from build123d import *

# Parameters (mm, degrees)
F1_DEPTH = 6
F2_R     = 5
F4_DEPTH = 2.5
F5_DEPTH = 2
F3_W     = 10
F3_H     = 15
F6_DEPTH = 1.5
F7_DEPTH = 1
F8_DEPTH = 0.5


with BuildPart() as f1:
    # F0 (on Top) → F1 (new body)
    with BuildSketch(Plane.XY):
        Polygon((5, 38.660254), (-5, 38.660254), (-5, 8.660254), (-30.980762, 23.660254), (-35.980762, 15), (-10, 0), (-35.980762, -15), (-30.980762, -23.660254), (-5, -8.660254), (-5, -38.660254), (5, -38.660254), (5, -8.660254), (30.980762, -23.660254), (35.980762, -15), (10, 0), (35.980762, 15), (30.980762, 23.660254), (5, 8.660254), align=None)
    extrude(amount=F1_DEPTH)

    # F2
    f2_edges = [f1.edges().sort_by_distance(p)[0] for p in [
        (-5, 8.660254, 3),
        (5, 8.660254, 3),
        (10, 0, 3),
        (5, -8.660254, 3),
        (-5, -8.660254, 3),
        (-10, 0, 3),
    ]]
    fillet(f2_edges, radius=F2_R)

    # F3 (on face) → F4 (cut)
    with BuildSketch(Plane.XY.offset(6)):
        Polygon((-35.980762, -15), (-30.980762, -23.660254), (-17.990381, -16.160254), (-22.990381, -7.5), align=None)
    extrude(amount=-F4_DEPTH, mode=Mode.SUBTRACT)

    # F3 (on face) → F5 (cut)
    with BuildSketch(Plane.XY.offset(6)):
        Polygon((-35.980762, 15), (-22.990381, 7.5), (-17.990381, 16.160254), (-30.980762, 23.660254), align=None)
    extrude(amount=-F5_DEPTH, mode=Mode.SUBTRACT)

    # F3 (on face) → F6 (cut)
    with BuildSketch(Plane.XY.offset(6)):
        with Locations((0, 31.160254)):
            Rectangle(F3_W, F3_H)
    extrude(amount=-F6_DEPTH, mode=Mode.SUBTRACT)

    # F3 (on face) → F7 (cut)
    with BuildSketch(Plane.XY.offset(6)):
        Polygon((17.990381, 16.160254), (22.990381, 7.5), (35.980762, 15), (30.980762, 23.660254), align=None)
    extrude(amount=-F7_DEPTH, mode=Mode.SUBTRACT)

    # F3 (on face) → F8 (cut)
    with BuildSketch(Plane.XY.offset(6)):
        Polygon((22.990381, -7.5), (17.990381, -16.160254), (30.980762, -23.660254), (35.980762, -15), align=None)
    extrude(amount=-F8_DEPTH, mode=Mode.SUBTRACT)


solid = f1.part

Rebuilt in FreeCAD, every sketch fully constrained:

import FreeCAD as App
import Part
import Sketcher
from FreeCAD import Vector
Q = App.Units.Quantity


def edges_at(feature, points):
    """Names of the edges that pass closest to the given points."""
    edges = feature.Shape.Edges
    near = lambda p: min(range(len(edges)), key=lambda i: edges[i].distToShape(Part.Vertex(*p))[0])
    return sorted({f"Edge{near(p) + 1}" for p in points})


def add_polygon(sketch, points):
    """Adds a closed chain of lines whose ends are joined by coincident constraints."""
    first, n = sketch.GeometryCount, len(points)
    for a, b in zip(points, points[1:] + points[:1]):
        sketch.addGeometry(Part.LineSegment(App.Vector(*a, 0), App.Vector(*b, 0)), False)
    for i in range(n):
        sketch.addConstraint(Sketcher.Constraint("Coincident", first + i, 2, first + (i + 1) % n, 1))

doc = App.newDocument("Part")
params = doc.addObject("Spreadsheet::Sheet", "Params")
for row, (alias, value) in enumerate([
    ("sketch1_width", "10 mm"),
    ("sketch1_height", "30 mm"),
    ("sketch1_length", "30 mm"),
    ("sketch1_length2", "10 mm"),
    ("pad1_length", "6 mm"),
    ("fillet_radius", "5 mm"),
    ("sketch2_length", "10 mm"),
    ("sketch2_length2", "15 mm"),
    ("pocket1_length", "2.5 mm"),
    ("sketch3_length", "15 mm"),
    ("sketch3_length2", "10 mm"),
    ("pocket2_length", "2 mm"),
    ("sketch4_width", "10 mm"),
    ("sketch4_height", "15 mm"),
    ("pocket3_length", "1.5 mm"),
    ("sketch5_length", "10 mm"),
    ("sketch5_length2", "15 mm"),
    ("pocket4_length", "1 mm"),
    ("sketch6_length", "10 mm"),
    ("sketch6_length2", "15 mm"),
    ("pocket5_length", "0.5 mm"),
], start=1):
    params.set(f"A{row}", alias)
    params.set(f"B{row}", "=" + value)
    params.setAlias(f"B{row}", alias)

body = doc.addObject("PartDesign::Body", "Body")

sketch1 = body.newObject("Sketcher::SketchObject", "Sketch")
sketch1.AttachmentSupport = (doc.getObject("XY_Plane"), [""])
sketch1.MapMode = "FlatFace"
add_polygon(sketch1, [(5, 39), (-5, 39), (-5, 9), (-31, 24), (-36, 15), (-10, 0), (-36, -15), (-31, -24), (-5, -9), (-5, -39), (5, -39), (5, -9), (31, -24), (36, -15), (10, 0), (36, 15), (31, 24), (5, 9)])
sketch1.addConstraint([
    Sketcher.Constraint("Horizontal", 0),
    Sketcher.Constraint("Vertical", 1),
    Sketcher.Constraint("Vertical", 8),
    Sketcher.Constraint("Horizontal", 9),
    Sketcher.Constraint("Vertical", 10),
    Sketcher.Constraint("Vertical", 17),
    Sketcher.Constraint("Symmetric", 0, 2, 9, 2, -1, 1),
    Sketcher.Constraint("Symmetric", 2, 2, 11, 2, -1, 1),
    Sketcher.Constraint("Symmetric", 3, 2, 12, 2, -1, 1),
    Sketcher.Constraint("Symmetric", 4, 2, 13, 2, -1, 1),
    Sketcher.Constraint("Symmetric", 5, 2, 14, 2, -1, 1),
    Sketcher.Constraint("Symmetric", 6, 2, 15, 2, -1, 1),
    Sketcher.Constraint("Symmetric", 7, 2, 16, 2, -1, 1),
    Sketcher.Constraint("Symmetric", 7, 2, 10, 2, -2),
    Sketcher.Constraint("Symmetric", 6, 2, 11, 2, -2),
    Sketcher.Constraint("Symmetric", 5, 2, 12, 2, -2),
    Sketcher.Constraint("PointOnObject", 4, 2, -1),
    Sketcher.Constraint("Perpendicular", 2, 3),
    Sketcher.Constraint("Perpendicular", 3, 4),
    Sketcher.Constraint("Perpendicular", 6, 7),
    Sketcher.Constraint("Equal", 2, 4),
    Sketcher.Constraint("DistanceX", 0, 2, 0, 1, 10.0),
    Sketcher.Constraint("DistanceY", 1, 2, 1, 1, 30.0),
    Sketcher.Constraint("Angle", 2, Q("150 deg")),
    Sketcher.Constraint("Distance", 2, 30.0),
    Sketcher.Constraint("Distance", 3, 10.0),
])
sketch1.setExpression("Constraints[39]", "Params.sketch1_width")
sketch1.setExpression("Constraints[40]", "Params.sketch1_height")
sketch1.setExpression("Constraints[42]", "Params.sketch1_length")
sketch1.setExpression("Constraints[43]", "Params.sketch1_length2")
pad1 = body.newObject("PartDesign::Pad", "Pad")
pad1.Profile = sketch1
pad1.setExpression("Length", "Params.pad1_length")
doc.recompute()

fillet = body.newObject("PartDesign::Fillet", "Fillet")
fillet.Base = (pad1, edges_at(pad1, [
    (-5, 8.66, 3),
    (5, 8.66, 3),
    (10, 0, 3),
    (5, -8.66, 3),
    (-5, -8.66, 3),
    (-10, 0, 3),
]))
fillet.setExpression("Radius", "Params.fillet_radius")

sketch2 = body.newObject("Sketcher::SketchObject", "Sketch001")
sketch2.AttachmentSupport = (doc.getObject("XY_Plane"), [""])
sketch2.MapMode = "FlatFace"
sketch2.AttachmentOffset = App.Placement(Vector(0, 0, 6), App.Rotation())
add_polygon(sketch2, [(-36, -15), (-31, -24), (-18, -16), (-23, -8)])
sketch2.addConstraint([
    Sketcher.Constraint("Perpendicular", 0, 1),
    Sketcher.Constraint("Perpendicular", 1, 2),
    Sketcher.Constraint("Perpendicular", 2, 3),
    Sketcher.Constraint("Angle", 0, Q("-60 deg")),
    Sketcher.Constraint("Distance", 0, 10.0),
    Sketcher.Constraint("Distance", 1, 15.0),
    Sketcher.Constraint("DistanceY", 3, 2, -1, 1, 15.0),
    Sketcher.Constraint("DistanceX", 0, 2, -1, 1, 30.980762),
])
sketch2.setExpression("Constraints[8]", "Params.sketch2_length")
sketch2.setExpression("Constraints[9]", "Params.sketch2_length2")
pocket1 = body.newObject("PartDesign::Pocket", "Pocket")
pocket1.Profile = sketch2
pocket1.setExpression("Length", "Params.pocket1_length")

sketch3 = body.newObject("Sketcher::SketchObject", "Sketch002")
sketch3.AttachmentSupport = (doc.getObject("XY_Plane"), [""])
sketch3.MapMode = "FlatFace"
sketch3.AttachmentOffset = App.Placement(Vector(0, 0, 6), App.Rotation())
add_polygon(sketch3, [(-36, 15), (-23, 8), (-18, 16), (-31, 24)])
sketch3.addConstraint([
    Sketcher.Constraint("Perpendicular", 0, 1),
    Sketcher.Constraint("Perpendicular", 1, 2),
    Sketcher.Constraint("Perpendicular", 2, 3),
    Sketcher.Constraint("Angle", 0, Q("-30 deg")),
    Sketcher.Constraint("Distance", 0, 15.0),
    Sketcher.Constraint("Distance", 1, 10.0),
    Sketcher.Constraint("DistanceY", -1, 1, 3, 2, 15.0),
    Sketcher.Constraint("DistanceX", 0, 2, -1, 1, 22.990381),
])
sketch3.setExpression("Constraints[8]", "Params.sketch3_length")
sketch3.setExpression("Constraints[9]", "Params.sketch3_length2")
pocket2 = body.newObject("PartDesign::Pocket", "Pocket001")
pocket2.Profile = sketch3
pocket2.setExpression("Length", "Params.pocket2_length")

sketch4 = body.newObject("Sketcher::SketchObject", "Sketch003")
sketch4.AttachmentSupport = (doc.getObject("XY_Plane"), [""])
sketch4.MapMode = "FlatFace"
sketch4.AttachmentOffset = App.Placement(Vector(0, 0, 6), App.Rotation())
add_polygon(sketch4, [(-5, 39), (-5, 24), (5, 24), (5, 39)])
sketch4.addConstraint([
    Sketcher.Constraint("Vertical", 0),
    Sketcher.Constraint("Horizontal", 1),
    Sketcher.Constraint("Vertical", 2),
    Sketcher.Constraint("Horizontal", 3),
    Sketcher.Constraint("DistanceX", 1, 1, 1, 2, 10.0),
    Sketcher.Constraint("DistanceY", 0, 2, 0, 1, 15.0),
    Sketcher.Constraint("DistanceX", 0, 2, -1, 1, 5.0),
    Sketcher.Constraint("DistanceY", -1, 1, 0, 2, 23.660254),
])
sketch4.setExpression("Constraints[8]", "Params.sketch4_width")
sketch4.setExpression("Constraints[9]", "Params.sketch4_height")
pocket3 = body.newObject("PartDesign::Pocket", "Pocket002")
pocket3.Profile = sketch4
pocket3.setExpression("Length", "Params.pocket3_length")

sketch5 = body.newObject("Sketcher::SketchObject", "Sketch004")
sketch5.AttachmentSupport = (doc.getObject("XY_Plane"), [""])
sketch5.MapMode = "FlatFace"
sketch5.AttachmentOffset = App.Placement(Vector(0, 0, 6), App.Rotation())
add_polygon(sketch5, [(18, 16), (23, 8), (36, 15), (31, 24)])
sketch5.addConstraint([
    Sketcher.Constraint("Perpendicular", 0, 1),
    Sketcher.Constraint("Perpendicular", 1, 2),
    Sketcher.Constraint("Perpendicular", 2, 3),
    Sketcher.Constraint("Angle", 0, Q("-60 deg")),
    Sketcher.Constraint("Distance", 0, 10.0),
    Sketcher.Constraint("Distance", 1, 15.0),
    Sketcher.Constraint("DistanceY", -1, 1, 1, 2, 15.0),
    Sketcher.Constraint("DistanceX", -1, 1, 0, 2, 22.990381),
])
sketch5.setExpression("Constraints[8]", "Params.sketch5_length")
sketch5.setExpression("Constraints[9]", "Params.sketch5_length2")
pocket4 = body.newObject("PartDesign::Pocket", "Pocket003")
pocket4.Profile = sketch5
pocket4.setExpression("Length", "Params.pocket4_length")

sketch6 = body.newObject("Sketcher::SketchObject", "Sketch005")
sketch6.AttachmentSupport = (doc.getObject("XY_Plane"), [""])
sketch6.MapMode = "FlatFace"
sketch6.AttachmentOffset = App.Placement(Vector(0, 0, 6), App.Rotation())
add_polygon(sketch6, [(23, -8), (18, -16), (31, -24), (36, -15)])
sketch6.addConstraint([
    Sketcher.Constraint("Perpendicular", 0, 1),
    Sketcher.Constraint("Perpendicular", 1, 2),
    Sketcher.Constraint("Perpendicular", 2, 3),
    Sketcher.Constraint("Angle", 0, Q("-120 deg")),
    Sketcher.Constraint("Distance", 0, 10.0),
    Sketcher.Constraint("Distance", 1, 15.0),
    Sketcher.Constraint("DistanceY", 2, 2, -1, 1, 15.0),
    Sketcher.Constraint("DistanceX", -1, 1, 0, 2, 17.990381),
])
sketch6.setExpression("Constraints[8]", "Params.sketch6_length")
sketch6.setExpression("Constraints[9]", "Params.sketch6_length2")
pocket5 = body.newObject("PartDesign::Pocket", "Pocket004")
pocket5.Profile = sketch6
pocket5.setExpression("Length", "Params.pocket5_length")

doc.recompute()
